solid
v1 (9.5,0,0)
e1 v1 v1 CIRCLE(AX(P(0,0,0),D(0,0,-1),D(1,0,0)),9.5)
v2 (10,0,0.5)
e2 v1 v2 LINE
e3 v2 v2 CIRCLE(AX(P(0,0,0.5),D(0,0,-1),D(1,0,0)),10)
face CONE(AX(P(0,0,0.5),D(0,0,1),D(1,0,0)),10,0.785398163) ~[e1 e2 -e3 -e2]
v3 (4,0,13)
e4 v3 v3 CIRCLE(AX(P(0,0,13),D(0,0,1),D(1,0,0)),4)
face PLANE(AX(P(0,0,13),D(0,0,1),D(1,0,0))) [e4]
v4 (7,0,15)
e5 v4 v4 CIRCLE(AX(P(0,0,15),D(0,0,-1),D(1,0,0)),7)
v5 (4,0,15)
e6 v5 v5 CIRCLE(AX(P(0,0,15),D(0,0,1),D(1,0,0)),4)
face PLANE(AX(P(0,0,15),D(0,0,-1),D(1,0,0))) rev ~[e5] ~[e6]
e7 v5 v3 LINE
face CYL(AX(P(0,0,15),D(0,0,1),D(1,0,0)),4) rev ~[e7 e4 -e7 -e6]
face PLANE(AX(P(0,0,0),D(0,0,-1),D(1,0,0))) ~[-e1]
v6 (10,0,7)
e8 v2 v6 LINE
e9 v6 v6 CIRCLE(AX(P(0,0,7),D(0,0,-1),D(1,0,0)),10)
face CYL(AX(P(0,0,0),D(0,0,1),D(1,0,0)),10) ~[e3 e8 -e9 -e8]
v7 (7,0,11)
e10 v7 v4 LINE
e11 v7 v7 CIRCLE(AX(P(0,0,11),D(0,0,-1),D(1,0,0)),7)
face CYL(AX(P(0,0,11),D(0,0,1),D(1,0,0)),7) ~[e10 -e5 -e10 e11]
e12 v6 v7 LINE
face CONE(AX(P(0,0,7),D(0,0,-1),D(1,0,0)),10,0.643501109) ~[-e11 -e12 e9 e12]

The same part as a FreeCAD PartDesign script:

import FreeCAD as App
import Part
import Sketcher

V = App.Vector
Q = App.Units.Quantity


def edges_at(feature, points):
    """Names of the edges that pass closest to the given points."""
    edges = feature.Shape.Edges
    near = lambda p: min(range(len(edges)), key=lambda i: edges[i].distToShape(Part.Vertex(*p))[0])
    return sorted({f"Edge{near(p) + 1}" for p in points})

doc = App.newDocument("Part")
body = doc.addObject("PartDesign::Body", "Body")

# Sketch on XZ plane
sketch1 = body.newObject("Sketcher::SketchObject", "Sketch")
sketch1.AttachmentSupport = (doc.getObject("XZ_Plane"), [""])
sketch1.MapMode = "FlatFace"
sketch1.addGeometry(Part.LineSegment(V(0, 15, 0), V(0, 0, 0)), False)
sketch1.addGeometry(Part.LineSegment(V(0, 0, 0), V(10, 0, 0)), False)
sketch1.addGeometry(Part.LineSegment(V(10, 0, 0), V(10, 7, 0)), False)
sketch1.addGeometry(Part.LineSegment(V(10, 7, 0), V(7, 11, 0)), False)
sketch1.addGeometry(Part.LineSegment(V(7, 11, 0), V(7, 15, 0)), False)
sketch1.addGeometry(Part.LineSegment(V(7, 15, 0), V(0, 15, 0)), False)
sketch1.addConstraint(Sketcher.Constraint("Coincident", 0, 2, 1, 1))
sketch1.addConstraint(Sketcher.Constraint("Coincident", 1, 2, 2, 1))
sketch1.addConstraint(Sketcher.Constraint("Coincident", 2, 2, 3, 1))
sketch1.addConstraint(Sketcher.Constraint("Coincident", 3, 2, 4, 1))
sketch1.addConstraint(Sketcher.Constraint("Coincident", 4, 2, 5, 1))
sketch1.addConstraint(Sketcher.Constraint("Coincident", 5, 2, 0, 1))
sketch1.addConstraint(Sketcher.Constraint("Vertical", 0))
sketch1.addConstraint(Sketcher.Constraint("Horizontal", 1))
sketch1.addConstraint(Sketcher.Constraint("Vertical", 2))
sketch1.addConstraint(Sketcher.Constraint("Vertical", 4))
sketch1.addConstraint(Sketcher.Constraint("Horizontal", 5))
sketch1.addConstraint(Sketcher.Constraint("Coincident", 0, 2, -1, 1))
sketch1.addConstraint(Sketcher.Constraint("Equal", 5, 2))
sketch1.addConstraint(Sketcher.Constraint("DistanceX", 1, 1, 1, 2, Q("10 mm")))
sketch1.addConstraint(Sketcher.Constraint("DistanceX", 5, 2, 5, 1, Q("7 mm")))
sketch1.addConstraint(Sketcher.Constraint("DistanceY", 0, 2, 0, 1, Q("15 mm")))
sketch1.addConstraint(Sketcher.Constraint("DistanceY", 4, 1, 4, 2, Q("4 mm")))
revolution = body.newObject("PartDesign::Revolution", "Revolution")
revolution.Profile = sketch1
revolution.ReferenceAxis = (sketch1, ["V_Axis"])
revolution.Angle = 360

# Sketch on XY plane
sketch2 = body.newObject("Sketcher::SketchObject", "Sketch001")
sketch2.AttachmentSupport = (doc.getObject("XY_Plane"), [""])
sketch2.MapMode = "FlatFace"
sketch2.AttachmentOffset = App.Placement(V(0, 0, 15), App.Rotation())
sketch2.addGeometry(Part.Circle(V(0, 0, 0), V(0, 0, 1), 4), False)
sketch2.addConstraint(Sketcher.Constraint("Coincident", 0, 3, -1, 1))
sketch2.addConstraint(Sketcher.Constraint("Diameter", 0, Q("8 mm")))
pocket1 = body.newObject("PartDesign::Pocket", "Pocket")
pocket1.Profile = sketch2
pocket1.Length = 2
doc.recompute()

chamfer = body.newObject("PartDesign::Chamfer", "Chamfer")
chamfer.Base = (pocket1, edges_at(pocket1, [(-10, 0, 0)]))
chamfer.Size = 0.5

doc.recompute()
